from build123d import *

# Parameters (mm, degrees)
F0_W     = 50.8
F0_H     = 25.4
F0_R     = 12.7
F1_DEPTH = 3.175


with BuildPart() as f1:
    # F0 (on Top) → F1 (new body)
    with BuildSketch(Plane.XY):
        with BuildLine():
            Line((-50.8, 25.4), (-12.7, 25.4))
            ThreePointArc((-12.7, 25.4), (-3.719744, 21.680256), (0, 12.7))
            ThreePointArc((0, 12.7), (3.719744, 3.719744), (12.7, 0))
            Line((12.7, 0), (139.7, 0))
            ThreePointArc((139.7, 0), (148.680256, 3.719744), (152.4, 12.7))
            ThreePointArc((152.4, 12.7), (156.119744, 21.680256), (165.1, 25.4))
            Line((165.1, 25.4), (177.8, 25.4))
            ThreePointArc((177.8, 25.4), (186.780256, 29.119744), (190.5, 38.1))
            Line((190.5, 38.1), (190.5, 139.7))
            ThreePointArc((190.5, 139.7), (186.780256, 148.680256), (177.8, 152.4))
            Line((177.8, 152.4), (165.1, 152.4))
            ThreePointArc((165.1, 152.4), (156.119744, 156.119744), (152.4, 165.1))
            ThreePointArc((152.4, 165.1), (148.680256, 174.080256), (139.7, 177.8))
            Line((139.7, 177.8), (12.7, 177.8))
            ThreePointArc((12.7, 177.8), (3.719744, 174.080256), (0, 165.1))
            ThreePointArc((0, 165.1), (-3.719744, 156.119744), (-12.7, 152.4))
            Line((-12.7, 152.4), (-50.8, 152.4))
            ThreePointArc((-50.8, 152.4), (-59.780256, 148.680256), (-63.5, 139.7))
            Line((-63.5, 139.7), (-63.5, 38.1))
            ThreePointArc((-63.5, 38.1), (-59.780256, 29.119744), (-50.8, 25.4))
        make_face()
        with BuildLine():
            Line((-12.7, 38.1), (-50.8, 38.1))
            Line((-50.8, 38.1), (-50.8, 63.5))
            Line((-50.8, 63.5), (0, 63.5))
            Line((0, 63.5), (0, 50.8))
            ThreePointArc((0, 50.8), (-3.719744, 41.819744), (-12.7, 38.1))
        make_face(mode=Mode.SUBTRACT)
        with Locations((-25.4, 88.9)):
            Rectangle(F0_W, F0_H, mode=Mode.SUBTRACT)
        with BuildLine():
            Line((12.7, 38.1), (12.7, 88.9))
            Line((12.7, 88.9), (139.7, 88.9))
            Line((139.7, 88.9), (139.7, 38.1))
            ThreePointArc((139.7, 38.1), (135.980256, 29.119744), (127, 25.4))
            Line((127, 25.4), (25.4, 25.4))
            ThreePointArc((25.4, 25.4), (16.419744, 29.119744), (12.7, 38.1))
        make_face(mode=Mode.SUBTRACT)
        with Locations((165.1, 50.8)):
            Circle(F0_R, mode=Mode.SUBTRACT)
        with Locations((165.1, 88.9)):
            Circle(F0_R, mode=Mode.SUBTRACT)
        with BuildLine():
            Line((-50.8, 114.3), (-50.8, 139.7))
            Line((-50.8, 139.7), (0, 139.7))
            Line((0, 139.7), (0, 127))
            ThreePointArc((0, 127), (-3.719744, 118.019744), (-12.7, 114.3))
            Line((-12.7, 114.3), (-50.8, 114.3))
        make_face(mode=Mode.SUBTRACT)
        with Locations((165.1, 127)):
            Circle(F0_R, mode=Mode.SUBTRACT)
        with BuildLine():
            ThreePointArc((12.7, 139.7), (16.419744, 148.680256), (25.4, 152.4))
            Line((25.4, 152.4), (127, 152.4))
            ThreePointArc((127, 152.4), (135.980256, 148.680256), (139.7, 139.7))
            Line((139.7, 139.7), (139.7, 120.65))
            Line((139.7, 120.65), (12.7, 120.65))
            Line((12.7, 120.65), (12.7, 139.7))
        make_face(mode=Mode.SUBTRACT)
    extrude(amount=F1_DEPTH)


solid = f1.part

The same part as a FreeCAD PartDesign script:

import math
import FreeCAD as App
import Part
import Sketcher
from FreeCAD import Vector
Q = App.Units.Quantity


def add_polygon(sketch, points):
    """Adds a closed chain of lines whose ends are joined by coincident constraints."""
    first, n = sketch.GeometryCount, len(points)
    for a, b in zip(points, points[1:] + points[:1]):
        sketch.addGeometry(Part.LineSegment(App.Vector(*a, 0), App.Vector(*b, 0)), False)
    for i in range(n):
        sketch.addConstraint(Sketcher.Constraint("Coincident", first + i, 2, first + (i + 1) % n, 1))

doc = App.newDocument("Part")
params = doc.addObject("Spreadsheet::Sheet", "Params")
for row, (alias, value) in enumerate([
    ("sketch1_diameter", "1 in"),
    ("sketch1_width", "5 in"),
    ("sketch1_width2", "2 in"),
    ("sketch1_height", "1 in"),
    ("sketch1_height2", "0.75 in"),
    ("pad1_length", "0.125 in"),
], start=1):
    params.set(f"A{row}", alias)
    params.set(f"B{row}", "=" + value)
    params.setAlias(f"B{row}", alias)

body = doc.addObject("PartDesign::Body", "Body")

# Sketch on XY plane
sketch1 = body.newObject("Sketcher::SketchObject", "Sketch")
sketch1.AttachmentSupport = (doc.getObject("XY_Plane"), [""])
sketch1.MapMode = "FlatFace"
sketch1.addGeometry(Part.LineSegment(Vector(-50.8, 25.4, 0), Vector(-12.7, 25.4, 0)), False)  # 0
sketch1.addGeometry(Part.ArcOfCircle(Part.Circle(Vector(-12.7, 12.7, 0), Vector(0, 0, 1), 12.7), math.radians(0.000002), math.radians(89.999998)), False)  # 1
sketch1.addGeometry(Part.ArcOfCircle(Part.Circle(Vector(12.7, 12.7, 0), Vector(0, 0, 1), 12.7), math.radians(-179.999998), math.radians(-90.000002)), False)  # 2
sketch1.addGeometry(Part.LineSegment(Vector(12.7, 0, 0), Vector(139.7, 0, 0)), False)  # 3
sketch1.addGeometry(Part.ArcOfCircle(Part.Circle(Vector(139.7, 12.7, 0), Vector(0, 0, 1), 12.7), math.radians(-89.999998), math.radians(-0.000002)), False)  # 4
sketch1.addGeometry(Part.ArcOfCircle(Part.Circle(Vector(165.1, 12.7, 0), Vector(0, 0, 1), 12.7), math.radians(90.000002), math.radians(179.999998)), False)  # 5
sketch1.addGeometry(Part.LineSegment(Vector(165.1, 25.4, 0), Vector(177.8, 25.4, 0)), False)  # 6
sketch1.addGeometry(Part.ArcOfCircle(Part.Circle(Vector(177.8, 38.1, 0), Vector(0, 0, 1), 12.7), math.radians(-89.999998), math.radians(-0.000002)), False)  # 7
sketch1.addGeometry(Part.LineSegment(Vector(190.5, 38.1, 0), Vector(190.5, 139.7, 0)), False)  # 8
sketch1.addGeometry(Part.ArcOfCircle(Part.Circle(Vector(177.8, 139.7, 0), Vector(0, 0, 1), 12.7), math.radians(0.000002), math.radians(89.999998)), False)  # 9
sketch1.addGeometry(Part.LineSegment(Vector(177.8, 152.4, 0), Vector(165.1, 152.4, 0)), False)  # 10
sketch1.addGeometry(Part.ArcOfCircle(Part.Circle(Vector(165.1, 165.1, 0), Vector(0, 0, 1), 12.7), math.radians(-179.999998), math.radians(-90.000002)), False)  # 11
sketch1.addGeometry(Part.ArcOfCircle(Part.Circle(Vector(139.7, 165.1, 0), Vector(0, 0, 1), 12.7), math.radians(0.000002), math.radians(89.999998)), False)  # 12
sketch1.addGeometry(Part.LineSegment(Vector(139.7, 177.8, 0), Vector(12.7, 177.8, 0)), False)  # 13
sketch1.addGeometry(Part.ArcOfCircle(Part.Circle(Vector(12.7, 165.1, 0), Vector(0, 0, 1), 12.7), math.radians(90.000002), math.radians(179.999998)), False)  # 14
sketch1.addGeometry(Part.ArcOfCircle(Part.Circle(Vector(-12.7, 165.1, 0), Vector(0, 0, 1), 12.7), math.radians(-89.999998), math.radians(-0.000002)), False)  # 15
sketch1.addGeometry(Part.LineSegment(Vector(-12.7, 152.4, 0), Vector(-50.8, 152.4, 0)), False)  # 16
sketch1.addGeometry(Part.ArcOfCircle(Part.Circle(Vector(-50.8, 139.7, 0), Vector(0, 0, 1), 12.7), math.radians(90.000002), math.radians(179.999998)), False)  # 17
sketch1.addGeometry(Part.LineSegment(Vector(-63.5, 139.7, 0), Vector(-63.5, 38.1, 0)), False)  # 18
sketch1.addGeometry(Part.ArcOfCircle(Part.Circle(Vector(-50.8, 38.1, 0), Vector(0, 0, 1), 12.7), math.radians(-179.999998), math.radians(-90.000002)), False)  # 19
sketch1.addGeometry(Part.ArcOfCircle(Part.Circle(Vector(-12.7, 50.8, 0), Vector(0, 0, 1), 12.7), math.radians(-89.999998), math.radians(-0.000002)), False)  # 20
sketch1.addGeometry(Part.LineSegment(Vector(-12.7, 38.1, 0), Vector(-50.8, 38.1, 0)), False)  # 21
sketch1.addGeometry(Part.LineSegment(Vector(-50.8, 38.1, 0), Vector(-50.8, 63.5, 0)), False)  # 22
sketch1.addGeometry(Part.LineSegment(Vector(-50.8, 63.5, 0), Vector(0, 63.5, 0)), False)  # 23
sketch1.addGeometry(Part.LineSegment(Vector(0, 63.5, 0), Vector(0, 50.8, 0)), False)  # 24
sketch1.addGeometry(Part.Circle(Vector(165.1, 50.8, 0), Vector(0, 0, 1), 12.7), False)  # 25
sketch1.addGeometry(Part.ArcOfCircle(Part.Circle(Vector(25.4, 38.1, 0), Vector(0, 0, 1), 12.7), math.radians(-179.999998), math.radians(-90.000002)), False)  # 26
sketch1.addGeometry(Part.LineSegment(Vector(12.7, 38.1, 0), Vector(12.7, 88.9, 0)), False)  # 27
sketch1.addGeometry(Part.LineSegment(Vector(12.7, 88.9, 0), Vector(139.7, 88.9, 0)), False)  # 28
sketch1.addGeometry(Part.LineSegment(Vector(139.7, 88.9, 0), Vector(139.7, 38.1, 0)), False)  # 29
sketch1.addGeometry(Part.ArcOfCircle(Part.Circle(Vector(127, 38.1, 0), Vector(0, 0, 1), 12.7), math.radians(-89.999998), math.radians(-0.000002)), False)  # 30
sketch1.addGeometry(Part.LineSegment(Vector(127, 25.4, 0), Vector(25.4, 25.4, 0)), False)  # 31
add_polygon(sketch1, [(0, 76.2), (-50.8, 76.2), (-50.8, 101.6), (0, 101.6)])  # lines 32-35
sketch1.addGeometry(Part.LineSegment(Vector(-12.7, 114.3, 0), Vector(-50.8, 114.3, 0)), False)  # 36
sketch1.addGeometry(Part.LineSegment(Vector(-50.8, 114.3, 0), Vector(-50.8, 139.7, 0)), False)  # 37
sketch1.addGeometry(Part.LineSegment(Vector(-50.8, 139.7, 0), Vector(0, 139.7, 0)), False)  # 38
sketch1.addGeometry(Part.LineSegment(Vector(0, 139.7, 0), Vector(0, 127, 0)), False)  # 39
sketch1.addGeometry(Part.ArcOfCircle(Part.Circle(Vector(-12.7, 127, 0), Vector(0, 0, 1), 12.7), math.radians(-89.999998), math.radians(-0.000002)), False)  # 40
sketch1.addGeometry(Part.Circle(Vector(165.1, 88.9, 0), Vector(0, 0, 1), 12.7), False)  # 41
sketch1.addGeometry(Part.LineSegment(Vector(12.7, 120.65, 0), Vector(12.7, 139.7, 0)), False)  # 42
sketch1.addGeometry(Part.ArcOfCircle(Part.Circle(Vector(25.4, 139.7, 0), Vector(0, 0, 1), 12.7), math.radians(90.000002), math.radians(179.999998)), False)  # 43
sketch1.addGeometry(Part.LineSegment(Vector(25.4, 152.4, 0), Vector(127, 152.4, 0)), False)  # 44
sketch1.addGeometry(Part.ArcOfCircle(Part.Circle(Vector(127, 139.7, 0), Vector(0, 0, 1), 12.7), math.radians(0.000002), math.radians(89.999998)), False)  # 45
sketch1.addGeometry(Part.LineSegment(Vector(139.7, 139.7, 0), Vector(139.7, 120.65, 0)), False)  # 46
sketch1.addGeometry(Part.LineSegment(Vector(139.7, 120.65, 0), Vector(12.7, 120.65, 0)), False)  # 47
sketch1.addGeometry(Part.Circle(Vector(165.1, 127, 0), Vector(0, 0, 1), 12.7), False)  # 48
sketch1.addConstraint([
    Sketcher.Constraint("Tangent", 0, 2, 1, 2),
    Sketcher.Constraint("Tangent", 1, 1, 2, 1),
    Sketcher.Constraint("Tangent", 2, 2, 3, 1),
    Sketcher.Constraint("Tangent", 3, 2, 4, 1),
    Sketcher.Constraint("Tangent", 4, 2, 5, 2),
    Sketcher.Constraint("Tangent", 5, 1, 6, 1),
    Sketcher.Constraint("Tangent", 6, 2, 7, 1),
    Sketcher.Constraint("Tangent", 7, 2, 8, 1),
    Sketcher.Constraint("Tangent", 8, 2, 9, 1),
    Sketcher.Constraint("Tangent", 9, 2, 10, 1),
    Sketcher.Constraint("Tangent", 10, 2, 11, 2),
    Sketcher.Constraint("Tangent", 11, 1, 12, 1),
    Sketcher.Constraint("Tangent", 12, 2, 13, 1),
    Sketcher.Constraint("Tangent", 13, 2, 14, 1),
    Sketcher.Constraint("Tangent", 14, 2, 15, 2),
    Sketcher.Constraint("Tangent", 15, 1, 16, 1),
    Sketcher.Constraint("Tangent", 16, 2, 17, 1),
    Sketcher.Constraint("Tangent", 17, 2, 18, 1),
    Sketcher.Constraint("Tangent", 18, 2, 19, 1),
    Sketcher.Constraint("Tangent", 19, 2, 0, 1),
    Sketcher.Constraint("Tangent", 20, 1, 21, 1),
    Sketcher.Constraint("Coincident", 21, 2, 22, 1),
    Sketcher.Constraint("Coincident", 22, 2, 23, 1),
    Sketcher.Constraint("Coincident", 23, 2, 24, 1),
    Sketcher.Constraint("Tangent", 24, 2, 20, 2),
    Sketcher.Constraint("Tangent", 26, 1, 27, 1),
    Sketcher.Constraint("Coincident", 27, 2, 28, 1),
    Sketcher.Constraint("Coincident", 28, 2, 29, 1),
    Sketcher.Constraint("Tangent", 29, 2, 30, 2),
    Sketcher.Constraint("Tangent", 30, 1, 31, 1),
    Sketcher.Constraint("Tangent", 31, 2, 26, 2),
    Sketcher.Constraint("Coincident", 36, 2, 37, 1),
    Sketcher.Constraint("Coincident", 37, 2, 38, 1),
    Sketcher.Constraint("Coincident", 38, 2, 39, 1),
    Sketcher.Constraint("Tangent", 39, 2, 40, 2),
    Sketcher.Constraint("Tangent", 40, 1, 36, 1),
    Sketcher.Constraint("Tangent", 42, 2, 43, 2),
    Sketcher.Constraint("Tangent", 43, 1, 44, 1),
    Sketcher.Constraint("Tangent", 44, 2, 45, 2),
    Sketcher.Constraint("Tangent", 45, 1, 46, 1),
    Sketcher.Constraint("Coincident", 46, 2, 47, 1),
    Sketcher.Constraint("Coincident", 47, 2, 42, 1),
    Sketcher.Constraint("Horizontal", 0),
    Sketcher.Constraint("Horizontal", 3),
    Sketcher.Constraint("Horizontal", 6),
    Sketcher.Constraint("Vertical", 8),
    Sketcher.Constraint("Horizontal", 10),
    Sketcher.Constraint("Horizontal", 13),
    Sketcher.Constraint("Horizontal", 16),
    Sketcher.Constraint("Vertical", 18),
    Sketcher.Constraint("Horizontal", 21),
    Sketcher.Constraint("Vertical", 22),
    Sketcher.Constraint("Horizontal", 23),
    Sketcher.Constraint("Vertical", 24),
    Sketcher.Constraint("Vertical", 27),
    Sketcher.Constraint("Horizontal", 28),
    Sketcher.Constraint("Vertical", 29),
    Sketcher.Constraint("Horizontal", 31),
    Sketcher.Constraint("Horizontal", 32),
    Sketcher.Constraint("Vertical", 33),
    Sketcher.Constraint("Horizontal", 34),
    Sketcher.Constraint("Vertical", 35),
    Sketcher.Constraint("Horizontal", 36),
    Sketcher.Constraint("Vertical", 37),
    Sketcher.Constraint("Horizontal", 38),
    Sketcher.Constraint("Vertical", 39),
    Sketcher.Constraint("Vertical", 42),
    Sketcher.Constraint("Horizontal", 44),
    Sketcher.Constraint("Vertical", 46),
    Sketcher.Constraint("Horizontal", 47),
    Sketcher.Constraint("Coincident", 21, 2, 19, 3),
    Sketcher.Constraint("Coincident", 37, 2, 17, 3),
    Sketcher.Constraint("Equal", 1, 2),
    Sketcher.Constraint("Equal", 2, 4),
    Sketcher.Constraint("Equal", 4, 5),
    Sketcher.Constraint("Equal", 5, 7),
    Sketcher.Constraint("Equal", 7, 9),
    Sketcher.Constraint("Equal", 9, 11),
    Sketcher.Constraint("Equal", 11, 12),
    Sketcher.Constraint("Equal", 12, 14),
    Sketcher.Constraint("Equal", 14, 15),
    Sketcher.Constraint("Equal", 15, 17),
    Sketcher.Constraint("Equal", 17, 19),
    Sketcher.Constraint("Equal", 19, 20),
    Sketcher.Constraint("Equal", 20, 25),
    Sketcher.Constraint("Equal", 25, 26),
    Sketcher.Constraint("Equal", 26, 30),
    Sketcher.Constraint("Equal", 30, 40),
    Sketcher.Constraint("Equal", 40, 41),
    Sketcher.Constraint("Equal", 41, 43),
    Sketcher.Constraint("Equal", 43, 45),
    Sketcher.Constraint("Equal", 45, 48),
    Sketcher.Constraint("Symmetric", 1, 3, 2, 3, -2),
    Sketcher.Constraint("Symmetric", 14, 3, 15, 3, -2),
    Sketcher.Constraint("Symmetric", 20, 1, 26, 1, -2),
    Sketcher.Constraint("PointOnObject", 2, 2, -1),
    Sketcher.Constraint("PointOnObject", 23, 2, -2),
    Sketcher.Constraint("PointOnObject", 34, 2, -2),
    Sketcher.Constraint("PointOnObject", 38, 2, -2),
    Sketcher.Constraint("Horizontal", 4, 3, 5, 3),
    Sketcher.Constraint("Horizontal", 11, 3, 12, 3),
    Sketcher.Constraint("Horizontal", 20, 3, 25, 3),
    Sketcher.Constraint("Horizontal", 17, 3, 43, 3),
    Sketcher.Constraint("Horizontal", 40, 3, 48, 3),
    Sketcher.Constraint("Horizontal", 41, 3, 27, 2),
    Sketcher.Constraint("Vertical", 5, 3, 11, 3),
    Sketcher.Constraint("Vertical", 11, 3, 25, 3),
    Sketcher.Constraint("Vertical", 25, 3, 41, 3),
    Sketcher.Constraint("Vertical", 26, 3, 43, 3),
    Sketcher.Constraint("Vertical", 30, 3, 45, 3),
    Sketcher.Constraint("Vertical", 41, 3, 48, 3),
    Sketcher.Constraint("Vertical", 12, 2, 28, 2),
    Sketcher.Constraint("Vertical", 22, 2, 32, 2),
    Sketcher.Constraint("Equal", 44, 8),
    Sketcher.Constraint("Equal", 10, 24),
    Sketcher.Constraint("Equal", 38, 27),
    Sketcher.Constraint("Equal", 22, 33),
    Sketcher.Constraint("Equal", 35, 37),
    Sketcher.Constraint("Diameter", 25, Q("1 in")),
    Sketcher.Constraint("DistanceX", 3, 1, 3, 2, Q("5 in")),
    Sketcher.Constraint("DistanceX", 23, 1, 23, 2, Q("2 in")),
    Sketcher.Constraint("DistanceY", 22, 1, 22, 2, Q("1 in")),
    Sketcher.Constraint("DistanceY", -1, 1, 32, 2, Q("3 in")),
    Sketcher.Constraint("DistanceY", 42, 1, 42, 2, Q("0.75 in")),
])
sketch1.setExpression("Constraints[122]", "Params.sketch1_diameter")
sketch1.setExpression("Constraints[123]", "Params.sketch1_width")
sketch1.setExpression("Constraints[124]", "Params.sketch1_width2")
sketch1.setExpression("Constraints[125]", "Params.sketch1_height")
sketch1.setExpression("Constraints[127]", "Params.sketch1_height2")
pad1 = body.newObject("PartDesign::Pad", "Pad")
pad1.Profile = sketch1
pad1.setExpression("Length", "Params.pad1_length")

doc.recompute()
